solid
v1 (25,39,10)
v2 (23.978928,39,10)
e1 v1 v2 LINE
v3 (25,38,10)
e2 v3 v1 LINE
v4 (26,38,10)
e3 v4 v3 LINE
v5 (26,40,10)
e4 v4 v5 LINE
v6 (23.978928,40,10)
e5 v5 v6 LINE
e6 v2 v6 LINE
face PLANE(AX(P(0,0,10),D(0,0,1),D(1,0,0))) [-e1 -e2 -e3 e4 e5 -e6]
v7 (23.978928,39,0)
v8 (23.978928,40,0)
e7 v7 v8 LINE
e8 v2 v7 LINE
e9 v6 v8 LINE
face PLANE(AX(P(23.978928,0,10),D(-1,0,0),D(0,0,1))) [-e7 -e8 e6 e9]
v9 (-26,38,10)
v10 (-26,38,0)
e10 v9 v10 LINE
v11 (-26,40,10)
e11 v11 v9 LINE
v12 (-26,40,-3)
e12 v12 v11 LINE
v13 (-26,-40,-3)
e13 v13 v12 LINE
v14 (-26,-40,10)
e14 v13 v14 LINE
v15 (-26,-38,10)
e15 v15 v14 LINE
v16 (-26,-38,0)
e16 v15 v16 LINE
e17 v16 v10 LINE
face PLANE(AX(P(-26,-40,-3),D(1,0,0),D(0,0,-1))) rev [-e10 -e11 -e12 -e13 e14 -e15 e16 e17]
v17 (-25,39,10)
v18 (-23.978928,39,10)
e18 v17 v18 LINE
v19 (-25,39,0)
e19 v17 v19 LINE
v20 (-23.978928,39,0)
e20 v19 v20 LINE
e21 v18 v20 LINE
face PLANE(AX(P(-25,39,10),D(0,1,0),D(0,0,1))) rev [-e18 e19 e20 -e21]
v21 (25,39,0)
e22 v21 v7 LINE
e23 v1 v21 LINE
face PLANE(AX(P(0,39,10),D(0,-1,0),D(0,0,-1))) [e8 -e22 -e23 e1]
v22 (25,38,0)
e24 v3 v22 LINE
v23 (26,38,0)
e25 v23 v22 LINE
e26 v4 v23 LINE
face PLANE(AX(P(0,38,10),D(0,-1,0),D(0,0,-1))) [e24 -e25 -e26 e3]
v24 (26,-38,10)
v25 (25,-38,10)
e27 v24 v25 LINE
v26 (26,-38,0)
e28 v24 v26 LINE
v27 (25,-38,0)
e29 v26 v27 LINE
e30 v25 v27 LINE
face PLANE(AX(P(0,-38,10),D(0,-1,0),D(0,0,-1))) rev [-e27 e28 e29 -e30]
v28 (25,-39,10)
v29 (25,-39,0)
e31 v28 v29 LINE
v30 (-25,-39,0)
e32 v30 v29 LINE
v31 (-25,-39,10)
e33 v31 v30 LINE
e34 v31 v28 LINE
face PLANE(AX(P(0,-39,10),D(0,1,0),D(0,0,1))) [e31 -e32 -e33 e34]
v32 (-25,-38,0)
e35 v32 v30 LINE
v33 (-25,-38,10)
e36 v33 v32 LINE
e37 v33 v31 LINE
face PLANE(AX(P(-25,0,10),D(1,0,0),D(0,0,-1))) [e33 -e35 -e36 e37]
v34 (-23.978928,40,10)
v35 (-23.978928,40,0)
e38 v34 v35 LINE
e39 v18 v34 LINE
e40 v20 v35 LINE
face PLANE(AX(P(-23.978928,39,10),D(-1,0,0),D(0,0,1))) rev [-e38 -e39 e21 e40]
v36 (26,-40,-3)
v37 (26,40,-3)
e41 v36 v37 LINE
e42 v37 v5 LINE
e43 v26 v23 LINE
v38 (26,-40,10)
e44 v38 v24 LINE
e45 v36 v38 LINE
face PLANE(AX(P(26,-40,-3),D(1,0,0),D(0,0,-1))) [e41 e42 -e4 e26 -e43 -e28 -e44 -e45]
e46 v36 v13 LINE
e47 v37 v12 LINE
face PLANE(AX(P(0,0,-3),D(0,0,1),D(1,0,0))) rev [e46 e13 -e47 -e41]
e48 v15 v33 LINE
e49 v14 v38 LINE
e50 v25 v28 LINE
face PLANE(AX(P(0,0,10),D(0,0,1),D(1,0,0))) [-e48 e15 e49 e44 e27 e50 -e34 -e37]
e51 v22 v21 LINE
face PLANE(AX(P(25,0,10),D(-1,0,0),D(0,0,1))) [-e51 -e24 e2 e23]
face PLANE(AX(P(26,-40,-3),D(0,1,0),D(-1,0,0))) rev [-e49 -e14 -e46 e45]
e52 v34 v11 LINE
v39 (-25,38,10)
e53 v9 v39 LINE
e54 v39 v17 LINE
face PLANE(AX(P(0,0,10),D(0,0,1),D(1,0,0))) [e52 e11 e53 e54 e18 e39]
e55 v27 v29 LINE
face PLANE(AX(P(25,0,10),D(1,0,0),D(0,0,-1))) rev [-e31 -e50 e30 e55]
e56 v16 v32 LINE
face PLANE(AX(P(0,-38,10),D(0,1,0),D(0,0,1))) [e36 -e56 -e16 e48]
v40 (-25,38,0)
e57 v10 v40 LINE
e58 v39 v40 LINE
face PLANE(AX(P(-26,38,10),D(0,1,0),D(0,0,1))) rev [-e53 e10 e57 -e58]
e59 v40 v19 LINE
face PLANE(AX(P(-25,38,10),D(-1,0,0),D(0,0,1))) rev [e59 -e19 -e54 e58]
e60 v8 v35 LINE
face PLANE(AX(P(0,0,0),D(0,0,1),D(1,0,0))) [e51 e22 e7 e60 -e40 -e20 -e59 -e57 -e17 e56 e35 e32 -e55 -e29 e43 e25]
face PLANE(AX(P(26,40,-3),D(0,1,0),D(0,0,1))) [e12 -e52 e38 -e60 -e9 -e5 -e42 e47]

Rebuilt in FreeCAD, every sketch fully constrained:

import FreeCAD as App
import Part
import Sketcher
from FreeCAD import Vector
Q = App.Units.Quantity

doc = App.newDocument("Part")
body = doc.addObject("PartDesign::Body", "Body")

# Sketch on XY plane
sketch1 = body.newObject("Sketcher::SketchObject", "Sketch")
sketch1.AttachmentSupport = (doc.getObject("XY_Plane"), [""])
sketch1.MapMode = "FlatFace"
sketch1.addGeometry(Part.LineSegment(Vector(-26, 40, 0), Vector(-26, -40, 0)), False)
sketch1.addGeometry(Part.LineSegment(Vector(-26, -40, 0), Vector(26, -40, 0)), False)
sketch1.addGeometry(Part.LineSegment(Vector(26, -40, 0), Vector(26, 40, 0)), False)
sketch1.addGeometry(Part.LineSegment(Vector(26, 40, 0), Vector(-26, 40, 0)), False)
sketch1.addConstraint(Sketcher.Constraint("Coincident", 0, 2, 1, 1))
sketch1.addConstraint(Sketcher.Constraint("Coincident", 1, 2, 2, 1))
sketch1.addConstraint(Sketcher.Constraint("Coincident", 2, 2, 3, 1))
sketch1.addConstraint(Sketcher.Constraint("Coincident", 3, 2, 0, 1))
sketch1.addConstraint(Sketcher.Constraint("Vertical", 0))
sketch1.addConstraint(Sketcher.Constraint("Horizontal", 1))
sketch1.addConstraint(Sketcher.Constraint("Vertical", 2))
sketch1.addConstraint(Sketcher.Constraint("Horizontal", 3))
sketch1.addConstraint(Sketcher.Constraint("Symmetric", 0, 2, 2, 2, -1, 1))
sketch1.addConstraint(Sketcher.Constraint("DistanceX", 1, 1, 1, 2, Q("52 mm")))
sketch1.addConstraint(Sketcher.Constraint("DistanceY", 0, 2, 0, 1, Q("80 mm")))
pad1 = body.newObject("PartDesign::Pad", "Pad")
pad1.Profile = sketch1
pad1.Length = 3
pad1.Reversed = True

# Sketch on XY plane
sketch2 = body.newObject("Sketcher::SketchObject", "Sketch001")
sketch2.AttachmentSupport = (doc.getObject("XY_Plane"), [""])
sketch2.MapMode = "FlatFace"
sketch2.addGeometry(Part.LineSegment(Vector(26, 40, 0), Vector(24, 40, 0)), False)
sketch2.addGeometry(Part.LineSegment(Vector(24, 40, 0), Vector(24, 39, 0)), False)
sketch2.addGeometry(Part.LineSegment(Vector(24, 39, 0), Vector(25, 39, 0)), False)
sketch2.addGeometry(Part.LineSegment(Vector(25, 39, 0), Vector(25, 38, 0)), False)
sketch2.addGeometry(Part.LineSegment(Vector(25, 38, 0), Vector(26, 38, 0)), False)
sketch2.addGeometry(Part.LineSegment(Vector(26, 38, 0), Vector(26, 40, 0)), False)
sketch2.addGeometry(Part.LineSegment(Vector(-25, -38, 0), Vector(-26, -38, 0)), False)
sketch2.addGeometry(Part.LineSegment(Vector(-26, -38, 0), Vector(-26, -40, 0)), False)
sketch2.addGeometry(Part.LineSegment(Vector(-26, -40, 0), Vector(-24, -40, 0)), False)
sketch2.addGeometry(Part.LineSegment(Vector(-24, -40, 0), Vector(-24, -39, 0)), False)
sketch2.addGeometry(Part.LineSegment(Vector(-24, -39, 0), Vector(-25, -39, 0)), False)
sketch2.addGeometry(Part.LineSegment(Vector(-25, -39, 0), Vector(-25, -38, 0)), False)
sketch2.addGeometry(Part.LineSegment(Vector(24, -39, 0), Vector(24, -40, 0)), False)
sketch2.addGeometry(Part.LineSegment(Vector(24, -40, 0), Vector(26, -40, 0)), False)
sketch2.addGeometry(Part.LineSegment(Vector(26, -40, 0), Vector(26, -38, 0)), False)
sketch2.addGeometry(Part.LineSegment(Vector(26, -38, 0), Vector(25, -38, 0)), False)
sketch2.addGeometry(Part.LineSegment(Vector(25, -38, 0), Vector(25, -39, 0)), False)
sketch2.addGeometry(Part.LineSegment(Vector(25, -39, 0), Vector(24, -39, 0)), False)
sketch2.addGeometry(Part.LineSegment(Vector(-26, 40, 0), Vector(-26, 38, 0)), False)
sketch2.addGeometry(Part.LineSegment(Vector(-26, 38, 0), Vector(-25, 38, 0)), False)
sketch2.addGeometry(Part.LineSegment(Vector(-25, 38, 0), Vector(-25, 39, 0)), False)
sketch2.addGeometry(Part.LineSegment(Vector(-25, 39, 0), Vector(-24, 39, 0)), False)
sketch2.addGeometry(Part.LineSegment(Vector(-24, 39, 0), Vector(-24, 40, 0)), False)
sketch2.addGeometry(Part.LineSegment(Vector(-24, 40, 0), Vector(-26, 40, 0)), False)
sketch2.addConstraint(Sketcher.Constraint("Coincident", 0, 2, 1, 1))
sketch2.addConstraint(Sketcher.Constraint("Coincident", 1, 2, 2, 1))
sketch2.addConstraint(Sketcher.Constraint("Coincident", 2, 2, 3, 1))
sketch2.addConstraint(Sketcher.Constraint("Coincident", 3, 2, 4, 1))
sketch2.addConstraint(Sketcher.Constraint("Coincident", 4, 2, 5, 1))
sketch2.addConstraint(Sketcher.Constraint("Coincident", 5, 2, 0, 1))
sketch2.addConstraint(Sketcher.Constraint("Coincident", 6, 2, 7, 1))
sketch2.addConstraint(Sketcher.Constraint("Coincident", 7, 2, 8, 1))
sketch2.addConstraint(Sketcher.Constraint("Coincident", 8, 2, 9, 1))
sketch2.addConstraint(Sketcher.Constraint("Coincident", 9, 2, 10, 1))
sketch2.addConstraint(Sketcher.Constraint("Coincident", 10, 2, 11, 1))
sketch2.addConstraint(Sketcher.Constraint("Coincident", 11, 2, 6, 1))
sketch2.addConstraint(Sketcher.Constraint("Coincident", 12, 2, 13, 1))
sketch2.addConstraint(Sketcher.Constraint("Coincident", 13, 2, 14, 1))
sketch2.addConstraint(Sketcher.Constraint("Coincident", 14, 2, 15, 1))
sketch2.addConstraint(Sketcher.Constraint("Coincident", 15, 2, 16, 1))
sketch2.addConstraint(Sketcher.Constraint("Coincident", 16, 2, 17, 1))
sketch2.addConstraint(Sketcher.Constraint("Coincident", 17, 2, 12, 1))
sketch2.addConstraint(Sketcher.Constraint("Coincident", 18, 2, 19, 1))
sketch2.addConstraint(Sketcher.Constraint("Coincident", 19, 2, 20, 1))
sketch2.addConstraint(Sketcher.Constraint("Coincident", 20, 2, 21, 1))
sketch2.addConstraint(Sketcher.Constraint("Coincident", 21, 2, 22, 1))
sketch2.addConstraint(Sketcher.Constraint("Coincident", 22, 2, 23, 1))
sketch2.addConstraint(Sketcher.Constraint("Coincident", 23, 2, 18, 1))
sketch2.addConstraint(Sketcher.Constraint("Horizontal", 0))
sketch2.addConstraint(Sketcher.Constraint("Vertical", 1))
sketch2.addConstraint(Sketcher.Constraint("Horizontal", 2))
sketch2.addConstraint(Sketcher.Constraint("Vertical", 3))
sketch2.addConstraint(Sketcher.Constraint("Horizontal", 4))
sketch2.addConstraint(Sketcher.Constraint("Vertical", 5))
sketch2.addConstraint(Sketcher.Constraint("Horizontal", 6))
sketch2.addConstraint(Sketcher.Constraint("Vertical", 7))
sketch2.addConstraint(Sketcher.Constraint("Horizontal", 8))
sketch2.addConstraint(Sketcher.Constraint("Vertical", 9))
sketch2.addConstraint(Sketcher.Constraint("Horizontal", 10))
sketch2.addConstraint(Sketcher.Constraint("Vertical", 11))
sketch2.addConstraint(Sketcher.Constraint("Vertical", 12))
sketch2.addConstraint(Sketcher.Constraint("Horizontal", 13))
sketch2.addConstraint(Sketcher.Constraint("Vertical", 14))
sketch2.addConstraint(Sketcher.Constraint("Horizontal", 15))
sketch2.addConstraint(Sketcher.Constraint("Vertical", 16))
sketch2.addConstraint(Sketcher.Constraint("Horizontal", 17))
sketch2.addConstraint(Sketcher.Constraint("Vertical", 18))
sketch2.addConstraint(Sketcher.Constraint("Horizontal", 19))
sketch2.addConstraint(Sketcher.Constraint("Vertical", 20))
sketch2.addConstraint(Sketcher.Constraint("Horizontal", 21))
sketch2.addConstraint(Sketcher.Constraint("Vertical", 22))
sketch2.addConstraint(Sketcher.Constraint("Horizontal", 23))
sketch2.addConstraint(Sketcher.Constraint("Symmetric", 4, 2, 6, 2, -1, 1))
sketch2.addConstraint(Sketcher.Constraint("Symmetric", 0, 2, 8, 2, -1, 1))
sketch2.addConstraint(Sketcher.Constraint("Symmetric", 2, 2, 10, 2, -1, 1))
sketch2.addConstraint(Sketcher.Constraint("Symmetric", 14, 2, 18, 2, -1, 1))
sketch2.addConstraint(Sketcher.Constraint("Symmetric", 16, 2, 20, 2, -1, 1))
sketch2.addConstraint(Sketcher.Constraint("Symmetric", 12, 2, 22, 2, -1, 1))
sketch2.addConstraint(Sketcher.Constraint("Symmetric", 8, 2, 12, 2, -2))
sketch2.addConstraint(Sketcher.Constraint("Symmetric", 6, 2, 14, 2, -2))
sketch2.addConstraint(Sketcher.Constraint("Symmetric", 10, 2, 16, 2, -2))
sketch2.addConstraint(Sketcher.Constraint("Equal", 19, 1))
sketch2.addConstraint(Sketcher.Constraint("Equal", 1, 3))
sketch2.addConstraint(Sketcher.Constraint("DistanceX", 4, 1, 4, 2, Q("1 mm")))
sketch2.addConstraint(Sketcher.Constraint("DistanceY", -1, 1, 0, 2, Q("40 mm")))
sketch2.addConstraint(Sketcher.Constraint("DistanceX", -1, 1, 2, 2, Q("25 mm")))
sketch2.addConstraint(Sketcher.Constraint("DistanceX", 0, 2, 0, 1, Q("2.021072 mm")))
pad2 = body.newObject("PartDesign::Pad", "Pad001")
pad2.Profile = sketch2
pad2.Length = 10

# Sketch on YZ plane
sketch3 = body.newObject("Sketcher::SketchObject", "Sketch002")
sketch3.AttachmentSupport = (doc.getObject("YZ_Plane"), [""])
sketch3.MapMode = "FlatFace"
sketch3.AttachmentOffset = App.Placement(Vector(0, 0, -23.978928), App.Rotation())
sketch3.addGeometry(Part.LineSegment(Vector(-39, 10, 0), Vector(-40, 10, 0)), False)
sketch3.addGeometry(Part.LineSegment(Vector(-40, 10, 0), Vector(-40, 0, 0)), False)
sketch3.addGeometry(Part.LineSegment(Vector(-40, 0, 0), Vector(-39, 0, 0)), False)
sketch3.addGeometry(Part.LineSegment(Vector(-39, 0, 0), Vector(-39, 10, 0)), False)
sketch3.addConstraint(Sketcher.Constraint("Coincident", 0, 2, 1, 1))
sketch3.addConstraint(Sketcher.Constraint("Coincident", 1, 2, 2, 1))
sketch3.addConstraint(Sketcher.Constraint("Coincident", 2, 2, 3, 1))
sketch3.addConstraint(Sketcher.Constraint("Coincident", 3, 2, 0, 1))
sketch3.addConstraint(Sketcher.Constraint("Horizontal", 0))
sketch3.addConstraint(Sketcher.Constraint("Vertical", 1))
sketch3.addConstraint(Sketcher.Constraint("Horizontal", 2))
sketch3.addConstraint(Sketcher.Constraint("Vertical", 3))
sketch3.addConstraint(Sketcher.Constraint("PointOnObject", 1, 2, -1))
sketch3.addConstraint(Sketcher.Constraint("DistanceX", 0, 2, 0, 1, Q("1 mm")))
sketch3.addConstraint(Sketcher.Constraint("DistanceY", 1, 2, 1, 1, Q("10 mm")))
sketch3.addConstraint(Sketcher.Constraint("DistanceX", 0, 2, -1, 1, Q("40 mm")))
pad3 = body.newObject("PartDesign::Pad", "Pad002")
pad3.Profile = sketch3
pad3.Type = "UpToFirst"

doc.recompute()
